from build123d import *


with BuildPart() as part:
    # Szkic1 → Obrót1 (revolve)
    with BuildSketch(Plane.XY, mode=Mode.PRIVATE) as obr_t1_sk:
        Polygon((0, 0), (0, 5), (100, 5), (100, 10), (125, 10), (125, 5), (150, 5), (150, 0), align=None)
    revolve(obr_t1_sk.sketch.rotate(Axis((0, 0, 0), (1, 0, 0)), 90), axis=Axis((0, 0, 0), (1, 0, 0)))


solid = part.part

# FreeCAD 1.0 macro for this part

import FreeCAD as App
import Part
import Sketcher

V = App.Vector
Q = App.Units.Quantity

doc = App.newDocument("Part")
body = doc.addObject("PartDesign::Body", "Body")

sketch1 = body.newObject("Sketcher::SketchObject", "Sketch")
sketch1.AttachmentSupport = (doc.getObject("XY_Plane"), [""])
sketch1.MapMode = "FlatFace"
sketch1.addGeometry([
    Part.LineSegment(V(0, 5, 0), V(0, 0, 0)),
    Part.LineSegment(V(0, 0, 0), V(150, 0, 0)),
    Part.LineSegment(V(150, 0, 0), V(150, 5, 0)),
    Part.LineSegment(V(150, 5, 0), V(125, 5, 0)),
    Part.LineSegment(V(125, 5, 0), V(125, 10, 0)),
    Part.LineSegment(V(125, 10, 0), V(100, 10, 0)),
    Part.LineSegment(V(100, 10, 0), V(100, 5, 0)),
    Part.LineSegment(V(100, 5, 0), V(0, 5, 0)),
], False)
sketch1.addConstraint([
    Sketcher.Constraint("Coincident", 0, 2, 1, 1),
    Sketcher.Constraint("Coincident", 1, 2, 2, 1),
    Sketcher.Constraint("Coincident", 2, 2, 3, 1),
    Sketcher.Constraint("Coincident", 3, 2, 4, 1),
    Sketcher.Constraint("Coincident", 4, 2, 5, 1),
    Sketcher.Constraint("Coincident", 5, 2, 6, 1),
    Sketcher.Constraint("Coincident", 6, 2, 7, 1),
    Sketcher.Constraint("Coincident", 7, 2, 0, 1),
    Sketcher.Constraint("Vertical", 0),
    Sketcher.Constraint("Horizontal", 1),
    Sketcher.Constraint("Vertical", 2),
    Sketcher.Constraint("Horizontal", 3),
    Sketcher.Constraint("Vertical", 4),
    Sketcher.Constraint("Horizontal", 5),
    Sketcher.Constraint("Vertical", 6),
    Sketcher.Constraint("Horizontal", 7),
    Sketcher.Constraint("Coincident", 0, 2, -1, 1),
    Sketcher.Constraint("Horizontal", 3, 2, 6, 2),
    Sketcher.Constraint("Equal", 3, 5),
    Sketcher.Constraint("Equal", 2, 4),
    Sketcher.Constraint("DistanceX", 1, 1, 1, 2, Q("150 mm")),
    Sketcher.Constraint("DistanceX", 3, 2, 3, 1, Q("25 mm")),
    Sketcher.Constraint("DistanceY", 0, 2, 0, 1, Q("5 mm")),
])
revolution = body.newObject("PartDesign::Revolution", "Revolution")
revolution.Profile = sketch1
revolution.ReferenceAxis = (sketch1, ["H_Axis"])
revolution.Angle = 360

doc.recompute()
